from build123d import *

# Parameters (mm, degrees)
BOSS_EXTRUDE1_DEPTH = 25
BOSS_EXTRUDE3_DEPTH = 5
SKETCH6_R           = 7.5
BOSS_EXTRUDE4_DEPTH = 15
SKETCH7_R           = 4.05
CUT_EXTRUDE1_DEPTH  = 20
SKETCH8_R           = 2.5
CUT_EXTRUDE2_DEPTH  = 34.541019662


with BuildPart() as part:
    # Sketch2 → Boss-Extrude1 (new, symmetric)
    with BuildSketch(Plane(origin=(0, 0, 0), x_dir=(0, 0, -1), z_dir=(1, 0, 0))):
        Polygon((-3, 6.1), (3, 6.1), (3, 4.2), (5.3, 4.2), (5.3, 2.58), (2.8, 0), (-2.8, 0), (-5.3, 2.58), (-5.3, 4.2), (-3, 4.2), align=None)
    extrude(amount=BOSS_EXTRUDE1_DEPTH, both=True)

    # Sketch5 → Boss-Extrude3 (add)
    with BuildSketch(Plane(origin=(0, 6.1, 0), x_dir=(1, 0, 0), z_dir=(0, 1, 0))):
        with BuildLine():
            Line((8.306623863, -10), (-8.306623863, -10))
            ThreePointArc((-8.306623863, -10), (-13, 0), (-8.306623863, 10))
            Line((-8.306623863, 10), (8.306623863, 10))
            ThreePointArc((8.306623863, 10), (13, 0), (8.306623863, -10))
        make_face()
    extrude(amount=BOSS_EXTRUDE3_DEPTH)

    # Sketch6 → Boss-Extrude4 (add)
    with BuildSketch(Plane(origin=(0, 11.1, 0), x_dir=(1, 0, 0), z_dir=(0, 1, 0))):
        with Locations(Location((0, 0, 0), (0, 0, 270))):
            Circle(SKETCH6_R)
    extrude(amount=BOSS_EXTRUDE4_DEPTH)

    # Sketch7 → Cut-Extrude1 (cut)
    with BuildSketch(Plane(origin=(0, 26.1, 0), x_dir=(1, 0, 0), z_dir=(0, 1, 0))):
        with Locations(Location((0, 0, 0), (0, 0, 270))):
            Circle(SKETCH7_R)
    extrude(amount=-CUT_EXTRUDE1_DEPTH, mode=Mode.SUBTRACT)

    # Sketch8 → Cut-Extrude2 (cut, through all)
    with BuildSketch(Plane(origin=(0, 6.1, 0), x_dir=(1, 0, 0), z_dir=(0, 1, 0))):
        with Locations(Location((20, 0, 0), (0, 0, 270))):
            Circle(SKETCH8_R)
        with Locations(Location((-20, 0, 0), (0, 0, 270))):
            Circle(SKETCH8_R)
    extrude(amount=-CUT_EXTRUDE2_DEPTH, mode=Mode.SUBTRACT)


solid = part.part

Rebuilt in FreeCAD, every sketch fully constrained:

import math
import FreeCAD as App
import Part
import Sketcher
Q = App.Units.Quantity


def add_polygon(sketch, points):
    """Adds a closed chain of lines whose ends are joined by coincident constraints."""
    first, n = sketch.GeometryCount, len(points)
    for a, b in zip(points, points[1:] + points[:1]):
        sketch.addGeometry(Part.LineSegment(App.Vector(*a, 0), App.Vector(*b, 0)), False)
    for i in range(n):
        sketch.addConstraint(Sketcher.Constraint("Coincident", first + i, 2, first + (i + 1) % n, 1))

doc = App.newDocument("Part")
body = doc.addObject("PartDesign::Body", "Body")

# Sketch on YZ plane
sketch1 = body.newObject("Sketcher::SketchObject", "Sketch")
sketch1.AttachmentSupport = (doc.getObject("YZ_Plane"), [""])
sketch1.MapMode = "FlatFace"
add_polygon(sketch1, [(6.1, -3), (6.1, 3), (4.2, 3), (4.2, 5.3), (2.58, 5.3), (0, 2.8), (0, -2.8), (2.58, -5.3), (4.2, -5.3), (4.2, -3)])  # lines 0-9
sketch1.addConstraint([
    Sketcher.Constraint("Vertical", 0),
    Sketcher.Constraint("Horizontal", 1),
    Sketcher.Constraint("Vertical", 2),
    Sketcher.Constraint("Horizontal", 3),
    Sketcher.Constraint("Vertical", 5),
    Sketcher.Constraint("Horizontal", 7),
    Sketcher.Constraint("Vertical", 8),
    Sketcher.Constraint("Horizontal", 9),
    Sketcher.Constraint("Symmetric", 4, 2, 5, 2, -1, 1),
    Sketcher.Constraint("Symmetric", 3, 2, 6, 2, -1),
    Sketcher.Constraint("Symmetric", 1, 2, 8, 2, -1),
    Sketcher.Constraint("DistanceY", 0, 1, 0, 2, Q("6 mm")),
    Sketcher.Constraint("DistanceX", 1, 2, 1, 1, Q("1.9 mm")),
    Sketcher.Constraint("DistanceY", 2, 1, 2, 2, Q("2.3 mm")),
    Sketcher.Constraint("DistanceY", 5, 2, 5, 1, Q("5.6 mm")),
    Sketcher.Constraint("DistanceX", 3, 2, 3, 1, Q("1.62 mm")),
    Sketcher.Constraint("DistanceX", -1, 1, 0, 2, Q("6.1 mm")),
])
pad1 = body.newObject("PartDesign::Pad", "Pad")
pad1.Profile = sketch1
pad1.Length = 50
pad1.Midplane = True

# Sketch on XZ plane
sketch2 = body.newObject("Sketcher::SketchObject", "Sketch001")
sketch2.AttachmentSupport = (doc.getObject("XZ_Plane"), [""])
sketch2.MapMode = "FlatFace"
sketch2.AttachmentOffset = App.Placement(App.Vector(0, 0, -6.1), App.Rotation())
sketch2.addGeometry([
    Part.LineSegment(App.Vector(-8.306624, 10, 0), App.Vector(8.306624, 10, 0)),
    Part.ArcOfCircle(Part.Circle(App.Vector(0, 0, 0), App.Vector(0, 0, 1), 13), math.radians(-50.284863), math.radians(50.284863)),
    Part.LineSegment(App.Vector(8.306624, -10, 0), App.Vector(-8.306624, -10, 0)),
    Part.ArcOfCircle(Part.Circle(App.Vector(0, 0, 0), App.Vector(0, 0, 1), 13), math.radians(129.715137), math.radians(230.284863)),
], False)
sketch2.addConstraint([
    Sketcher.Constraint("Coincident", 0, 2, 1, 2),
    Sketcher.Constraint("Coincident", 1, 1, 2, 1),
    Sketcher.Constraint("Coincident", 2, 2, 3, 2),
    Sketcher.Constraint("Coincident", 3, 1, 0, 1),
    Sketcher.Constraint("Horizontal", 0),
    Sketcher.Constraint("Horizontal", 2),
    Sketcher.Constraint("Coincident", 1, 3, -1, 1),
    Sketcher.Constraint("Coincident", 3, 3, -1, 1),
    Sketcher.Constraint("Equal", 1, 3),
    Sketcher.Constraint("Vertical", 0, 2, 1, 1),
    Sketcher.Constraint("Radius", 1, Q("13 mm")),
    Sketcher.Constraint("DistanceY", -1, 1, 0, 2, Q("10 mm")),
])
pad2 = body.newObject("PartDesign::Pad", "Pad001")
pad2.Profile = sketch2
pad2.Length = 5
pad2.Reversed = True

# Sketch on XZ plane
sketch3 = body.newObject("Sketcher::SketchObject", "Sketch002")
sketch3.AttachmentSupport = (doc.getObject("XZ_Plane"), [""])
sketch3.MapMode = "FlatFace"
sketch3.AttachmentOffset = App.Placement(App.Vector(0, 0, -11.1), App.Rotation())
sketch3.addGeometry(Part.Circle(App.Vector(0, 0, 0), App.Vector(0, 0, 1), 7.5), False)
sketch3.addConstraint([
    Sketcher.Constraint("Coincident", 0, 3, -1, 1),
    Sketcher.Constraint("Diameter", 0, Q("15 mm")),
])
pad3 = body.newObject("PartDesign::Pad", "Pad002")
pad3.Profile = sketch3
pad3.Length = 15
pad3.Reversed = True

# Sketch on XZ plane
sketch4 = body.newObject("Sketcher::SketchObject", "Sketch003")
sketch4.AttachmentSupport = (doc.getObject("XZ_Plane"), [""])
sketch4.MapMode = "FlatFace"
sketch4.AttachmentOffset = App.Placement(App.Vector(0, 0, -26.1), App.Rotation())
sketch4.addGeometry(Part.Circle(App.Vector(0, 0, 0), App.Vector(0, 0, 1), 4.05), False)
sketch4.addConstraint([
    Sketcher.Constraint("Coincident", 0, 3, -1, 1),
    Sketcher.Constraint("Diameter", 0, Q("8.1 mm")),
])
pocket1 = body.newObject("PartDesign::Pocket", "Pocket")
pocket1.Profile = sketch4
pocket1.Length = 20
pocket1.Reversed = True

# Sketch on XZ plane
sketch5 = body.newObject("Sketcher::SketchObject", "Sketch004")
sketch5.AttachmentSupport = (doc.getObject("XZ_Plane"), [""])
sketch5.MapMode = "FlatFace"
sketch5.AttachmentOffset = App.Placement(App.Vector(0, 0, -6.1), App.Rotation())
sketch5.addGeometry([
    Part.Circle(App.Vector(20, 0, 0), App.Vector(0, 0, 1), 2.5),
    Part.Circle(App.Vector(-20, 0, 0), App.Vector(0, 0, 1), 2.5),
], False)
sketch5.addConstraint([
    Sketcher.Constraint("Equal", 0, 1),
    Sketcher.Constraint("Symmetric", 0, 3, 1, 3, -1, 1),
    Sketcher.Constraint("PointOnObject", 0, 3, -1),
    Sketcher.Constraint("Diameter", 0, Q("5 mm")),
    Sketcher.Constraint("DistanceX", -1, 1, 0, 3, Q("20 mm")),
])
pocket2 = body.newObject("PartDesign::Pocket", "Pocket001")
pocket2.Profile = sketch5
pocket2.Type = "ThroughAll"
pocket2.Reversed = True

doc.recompute()
